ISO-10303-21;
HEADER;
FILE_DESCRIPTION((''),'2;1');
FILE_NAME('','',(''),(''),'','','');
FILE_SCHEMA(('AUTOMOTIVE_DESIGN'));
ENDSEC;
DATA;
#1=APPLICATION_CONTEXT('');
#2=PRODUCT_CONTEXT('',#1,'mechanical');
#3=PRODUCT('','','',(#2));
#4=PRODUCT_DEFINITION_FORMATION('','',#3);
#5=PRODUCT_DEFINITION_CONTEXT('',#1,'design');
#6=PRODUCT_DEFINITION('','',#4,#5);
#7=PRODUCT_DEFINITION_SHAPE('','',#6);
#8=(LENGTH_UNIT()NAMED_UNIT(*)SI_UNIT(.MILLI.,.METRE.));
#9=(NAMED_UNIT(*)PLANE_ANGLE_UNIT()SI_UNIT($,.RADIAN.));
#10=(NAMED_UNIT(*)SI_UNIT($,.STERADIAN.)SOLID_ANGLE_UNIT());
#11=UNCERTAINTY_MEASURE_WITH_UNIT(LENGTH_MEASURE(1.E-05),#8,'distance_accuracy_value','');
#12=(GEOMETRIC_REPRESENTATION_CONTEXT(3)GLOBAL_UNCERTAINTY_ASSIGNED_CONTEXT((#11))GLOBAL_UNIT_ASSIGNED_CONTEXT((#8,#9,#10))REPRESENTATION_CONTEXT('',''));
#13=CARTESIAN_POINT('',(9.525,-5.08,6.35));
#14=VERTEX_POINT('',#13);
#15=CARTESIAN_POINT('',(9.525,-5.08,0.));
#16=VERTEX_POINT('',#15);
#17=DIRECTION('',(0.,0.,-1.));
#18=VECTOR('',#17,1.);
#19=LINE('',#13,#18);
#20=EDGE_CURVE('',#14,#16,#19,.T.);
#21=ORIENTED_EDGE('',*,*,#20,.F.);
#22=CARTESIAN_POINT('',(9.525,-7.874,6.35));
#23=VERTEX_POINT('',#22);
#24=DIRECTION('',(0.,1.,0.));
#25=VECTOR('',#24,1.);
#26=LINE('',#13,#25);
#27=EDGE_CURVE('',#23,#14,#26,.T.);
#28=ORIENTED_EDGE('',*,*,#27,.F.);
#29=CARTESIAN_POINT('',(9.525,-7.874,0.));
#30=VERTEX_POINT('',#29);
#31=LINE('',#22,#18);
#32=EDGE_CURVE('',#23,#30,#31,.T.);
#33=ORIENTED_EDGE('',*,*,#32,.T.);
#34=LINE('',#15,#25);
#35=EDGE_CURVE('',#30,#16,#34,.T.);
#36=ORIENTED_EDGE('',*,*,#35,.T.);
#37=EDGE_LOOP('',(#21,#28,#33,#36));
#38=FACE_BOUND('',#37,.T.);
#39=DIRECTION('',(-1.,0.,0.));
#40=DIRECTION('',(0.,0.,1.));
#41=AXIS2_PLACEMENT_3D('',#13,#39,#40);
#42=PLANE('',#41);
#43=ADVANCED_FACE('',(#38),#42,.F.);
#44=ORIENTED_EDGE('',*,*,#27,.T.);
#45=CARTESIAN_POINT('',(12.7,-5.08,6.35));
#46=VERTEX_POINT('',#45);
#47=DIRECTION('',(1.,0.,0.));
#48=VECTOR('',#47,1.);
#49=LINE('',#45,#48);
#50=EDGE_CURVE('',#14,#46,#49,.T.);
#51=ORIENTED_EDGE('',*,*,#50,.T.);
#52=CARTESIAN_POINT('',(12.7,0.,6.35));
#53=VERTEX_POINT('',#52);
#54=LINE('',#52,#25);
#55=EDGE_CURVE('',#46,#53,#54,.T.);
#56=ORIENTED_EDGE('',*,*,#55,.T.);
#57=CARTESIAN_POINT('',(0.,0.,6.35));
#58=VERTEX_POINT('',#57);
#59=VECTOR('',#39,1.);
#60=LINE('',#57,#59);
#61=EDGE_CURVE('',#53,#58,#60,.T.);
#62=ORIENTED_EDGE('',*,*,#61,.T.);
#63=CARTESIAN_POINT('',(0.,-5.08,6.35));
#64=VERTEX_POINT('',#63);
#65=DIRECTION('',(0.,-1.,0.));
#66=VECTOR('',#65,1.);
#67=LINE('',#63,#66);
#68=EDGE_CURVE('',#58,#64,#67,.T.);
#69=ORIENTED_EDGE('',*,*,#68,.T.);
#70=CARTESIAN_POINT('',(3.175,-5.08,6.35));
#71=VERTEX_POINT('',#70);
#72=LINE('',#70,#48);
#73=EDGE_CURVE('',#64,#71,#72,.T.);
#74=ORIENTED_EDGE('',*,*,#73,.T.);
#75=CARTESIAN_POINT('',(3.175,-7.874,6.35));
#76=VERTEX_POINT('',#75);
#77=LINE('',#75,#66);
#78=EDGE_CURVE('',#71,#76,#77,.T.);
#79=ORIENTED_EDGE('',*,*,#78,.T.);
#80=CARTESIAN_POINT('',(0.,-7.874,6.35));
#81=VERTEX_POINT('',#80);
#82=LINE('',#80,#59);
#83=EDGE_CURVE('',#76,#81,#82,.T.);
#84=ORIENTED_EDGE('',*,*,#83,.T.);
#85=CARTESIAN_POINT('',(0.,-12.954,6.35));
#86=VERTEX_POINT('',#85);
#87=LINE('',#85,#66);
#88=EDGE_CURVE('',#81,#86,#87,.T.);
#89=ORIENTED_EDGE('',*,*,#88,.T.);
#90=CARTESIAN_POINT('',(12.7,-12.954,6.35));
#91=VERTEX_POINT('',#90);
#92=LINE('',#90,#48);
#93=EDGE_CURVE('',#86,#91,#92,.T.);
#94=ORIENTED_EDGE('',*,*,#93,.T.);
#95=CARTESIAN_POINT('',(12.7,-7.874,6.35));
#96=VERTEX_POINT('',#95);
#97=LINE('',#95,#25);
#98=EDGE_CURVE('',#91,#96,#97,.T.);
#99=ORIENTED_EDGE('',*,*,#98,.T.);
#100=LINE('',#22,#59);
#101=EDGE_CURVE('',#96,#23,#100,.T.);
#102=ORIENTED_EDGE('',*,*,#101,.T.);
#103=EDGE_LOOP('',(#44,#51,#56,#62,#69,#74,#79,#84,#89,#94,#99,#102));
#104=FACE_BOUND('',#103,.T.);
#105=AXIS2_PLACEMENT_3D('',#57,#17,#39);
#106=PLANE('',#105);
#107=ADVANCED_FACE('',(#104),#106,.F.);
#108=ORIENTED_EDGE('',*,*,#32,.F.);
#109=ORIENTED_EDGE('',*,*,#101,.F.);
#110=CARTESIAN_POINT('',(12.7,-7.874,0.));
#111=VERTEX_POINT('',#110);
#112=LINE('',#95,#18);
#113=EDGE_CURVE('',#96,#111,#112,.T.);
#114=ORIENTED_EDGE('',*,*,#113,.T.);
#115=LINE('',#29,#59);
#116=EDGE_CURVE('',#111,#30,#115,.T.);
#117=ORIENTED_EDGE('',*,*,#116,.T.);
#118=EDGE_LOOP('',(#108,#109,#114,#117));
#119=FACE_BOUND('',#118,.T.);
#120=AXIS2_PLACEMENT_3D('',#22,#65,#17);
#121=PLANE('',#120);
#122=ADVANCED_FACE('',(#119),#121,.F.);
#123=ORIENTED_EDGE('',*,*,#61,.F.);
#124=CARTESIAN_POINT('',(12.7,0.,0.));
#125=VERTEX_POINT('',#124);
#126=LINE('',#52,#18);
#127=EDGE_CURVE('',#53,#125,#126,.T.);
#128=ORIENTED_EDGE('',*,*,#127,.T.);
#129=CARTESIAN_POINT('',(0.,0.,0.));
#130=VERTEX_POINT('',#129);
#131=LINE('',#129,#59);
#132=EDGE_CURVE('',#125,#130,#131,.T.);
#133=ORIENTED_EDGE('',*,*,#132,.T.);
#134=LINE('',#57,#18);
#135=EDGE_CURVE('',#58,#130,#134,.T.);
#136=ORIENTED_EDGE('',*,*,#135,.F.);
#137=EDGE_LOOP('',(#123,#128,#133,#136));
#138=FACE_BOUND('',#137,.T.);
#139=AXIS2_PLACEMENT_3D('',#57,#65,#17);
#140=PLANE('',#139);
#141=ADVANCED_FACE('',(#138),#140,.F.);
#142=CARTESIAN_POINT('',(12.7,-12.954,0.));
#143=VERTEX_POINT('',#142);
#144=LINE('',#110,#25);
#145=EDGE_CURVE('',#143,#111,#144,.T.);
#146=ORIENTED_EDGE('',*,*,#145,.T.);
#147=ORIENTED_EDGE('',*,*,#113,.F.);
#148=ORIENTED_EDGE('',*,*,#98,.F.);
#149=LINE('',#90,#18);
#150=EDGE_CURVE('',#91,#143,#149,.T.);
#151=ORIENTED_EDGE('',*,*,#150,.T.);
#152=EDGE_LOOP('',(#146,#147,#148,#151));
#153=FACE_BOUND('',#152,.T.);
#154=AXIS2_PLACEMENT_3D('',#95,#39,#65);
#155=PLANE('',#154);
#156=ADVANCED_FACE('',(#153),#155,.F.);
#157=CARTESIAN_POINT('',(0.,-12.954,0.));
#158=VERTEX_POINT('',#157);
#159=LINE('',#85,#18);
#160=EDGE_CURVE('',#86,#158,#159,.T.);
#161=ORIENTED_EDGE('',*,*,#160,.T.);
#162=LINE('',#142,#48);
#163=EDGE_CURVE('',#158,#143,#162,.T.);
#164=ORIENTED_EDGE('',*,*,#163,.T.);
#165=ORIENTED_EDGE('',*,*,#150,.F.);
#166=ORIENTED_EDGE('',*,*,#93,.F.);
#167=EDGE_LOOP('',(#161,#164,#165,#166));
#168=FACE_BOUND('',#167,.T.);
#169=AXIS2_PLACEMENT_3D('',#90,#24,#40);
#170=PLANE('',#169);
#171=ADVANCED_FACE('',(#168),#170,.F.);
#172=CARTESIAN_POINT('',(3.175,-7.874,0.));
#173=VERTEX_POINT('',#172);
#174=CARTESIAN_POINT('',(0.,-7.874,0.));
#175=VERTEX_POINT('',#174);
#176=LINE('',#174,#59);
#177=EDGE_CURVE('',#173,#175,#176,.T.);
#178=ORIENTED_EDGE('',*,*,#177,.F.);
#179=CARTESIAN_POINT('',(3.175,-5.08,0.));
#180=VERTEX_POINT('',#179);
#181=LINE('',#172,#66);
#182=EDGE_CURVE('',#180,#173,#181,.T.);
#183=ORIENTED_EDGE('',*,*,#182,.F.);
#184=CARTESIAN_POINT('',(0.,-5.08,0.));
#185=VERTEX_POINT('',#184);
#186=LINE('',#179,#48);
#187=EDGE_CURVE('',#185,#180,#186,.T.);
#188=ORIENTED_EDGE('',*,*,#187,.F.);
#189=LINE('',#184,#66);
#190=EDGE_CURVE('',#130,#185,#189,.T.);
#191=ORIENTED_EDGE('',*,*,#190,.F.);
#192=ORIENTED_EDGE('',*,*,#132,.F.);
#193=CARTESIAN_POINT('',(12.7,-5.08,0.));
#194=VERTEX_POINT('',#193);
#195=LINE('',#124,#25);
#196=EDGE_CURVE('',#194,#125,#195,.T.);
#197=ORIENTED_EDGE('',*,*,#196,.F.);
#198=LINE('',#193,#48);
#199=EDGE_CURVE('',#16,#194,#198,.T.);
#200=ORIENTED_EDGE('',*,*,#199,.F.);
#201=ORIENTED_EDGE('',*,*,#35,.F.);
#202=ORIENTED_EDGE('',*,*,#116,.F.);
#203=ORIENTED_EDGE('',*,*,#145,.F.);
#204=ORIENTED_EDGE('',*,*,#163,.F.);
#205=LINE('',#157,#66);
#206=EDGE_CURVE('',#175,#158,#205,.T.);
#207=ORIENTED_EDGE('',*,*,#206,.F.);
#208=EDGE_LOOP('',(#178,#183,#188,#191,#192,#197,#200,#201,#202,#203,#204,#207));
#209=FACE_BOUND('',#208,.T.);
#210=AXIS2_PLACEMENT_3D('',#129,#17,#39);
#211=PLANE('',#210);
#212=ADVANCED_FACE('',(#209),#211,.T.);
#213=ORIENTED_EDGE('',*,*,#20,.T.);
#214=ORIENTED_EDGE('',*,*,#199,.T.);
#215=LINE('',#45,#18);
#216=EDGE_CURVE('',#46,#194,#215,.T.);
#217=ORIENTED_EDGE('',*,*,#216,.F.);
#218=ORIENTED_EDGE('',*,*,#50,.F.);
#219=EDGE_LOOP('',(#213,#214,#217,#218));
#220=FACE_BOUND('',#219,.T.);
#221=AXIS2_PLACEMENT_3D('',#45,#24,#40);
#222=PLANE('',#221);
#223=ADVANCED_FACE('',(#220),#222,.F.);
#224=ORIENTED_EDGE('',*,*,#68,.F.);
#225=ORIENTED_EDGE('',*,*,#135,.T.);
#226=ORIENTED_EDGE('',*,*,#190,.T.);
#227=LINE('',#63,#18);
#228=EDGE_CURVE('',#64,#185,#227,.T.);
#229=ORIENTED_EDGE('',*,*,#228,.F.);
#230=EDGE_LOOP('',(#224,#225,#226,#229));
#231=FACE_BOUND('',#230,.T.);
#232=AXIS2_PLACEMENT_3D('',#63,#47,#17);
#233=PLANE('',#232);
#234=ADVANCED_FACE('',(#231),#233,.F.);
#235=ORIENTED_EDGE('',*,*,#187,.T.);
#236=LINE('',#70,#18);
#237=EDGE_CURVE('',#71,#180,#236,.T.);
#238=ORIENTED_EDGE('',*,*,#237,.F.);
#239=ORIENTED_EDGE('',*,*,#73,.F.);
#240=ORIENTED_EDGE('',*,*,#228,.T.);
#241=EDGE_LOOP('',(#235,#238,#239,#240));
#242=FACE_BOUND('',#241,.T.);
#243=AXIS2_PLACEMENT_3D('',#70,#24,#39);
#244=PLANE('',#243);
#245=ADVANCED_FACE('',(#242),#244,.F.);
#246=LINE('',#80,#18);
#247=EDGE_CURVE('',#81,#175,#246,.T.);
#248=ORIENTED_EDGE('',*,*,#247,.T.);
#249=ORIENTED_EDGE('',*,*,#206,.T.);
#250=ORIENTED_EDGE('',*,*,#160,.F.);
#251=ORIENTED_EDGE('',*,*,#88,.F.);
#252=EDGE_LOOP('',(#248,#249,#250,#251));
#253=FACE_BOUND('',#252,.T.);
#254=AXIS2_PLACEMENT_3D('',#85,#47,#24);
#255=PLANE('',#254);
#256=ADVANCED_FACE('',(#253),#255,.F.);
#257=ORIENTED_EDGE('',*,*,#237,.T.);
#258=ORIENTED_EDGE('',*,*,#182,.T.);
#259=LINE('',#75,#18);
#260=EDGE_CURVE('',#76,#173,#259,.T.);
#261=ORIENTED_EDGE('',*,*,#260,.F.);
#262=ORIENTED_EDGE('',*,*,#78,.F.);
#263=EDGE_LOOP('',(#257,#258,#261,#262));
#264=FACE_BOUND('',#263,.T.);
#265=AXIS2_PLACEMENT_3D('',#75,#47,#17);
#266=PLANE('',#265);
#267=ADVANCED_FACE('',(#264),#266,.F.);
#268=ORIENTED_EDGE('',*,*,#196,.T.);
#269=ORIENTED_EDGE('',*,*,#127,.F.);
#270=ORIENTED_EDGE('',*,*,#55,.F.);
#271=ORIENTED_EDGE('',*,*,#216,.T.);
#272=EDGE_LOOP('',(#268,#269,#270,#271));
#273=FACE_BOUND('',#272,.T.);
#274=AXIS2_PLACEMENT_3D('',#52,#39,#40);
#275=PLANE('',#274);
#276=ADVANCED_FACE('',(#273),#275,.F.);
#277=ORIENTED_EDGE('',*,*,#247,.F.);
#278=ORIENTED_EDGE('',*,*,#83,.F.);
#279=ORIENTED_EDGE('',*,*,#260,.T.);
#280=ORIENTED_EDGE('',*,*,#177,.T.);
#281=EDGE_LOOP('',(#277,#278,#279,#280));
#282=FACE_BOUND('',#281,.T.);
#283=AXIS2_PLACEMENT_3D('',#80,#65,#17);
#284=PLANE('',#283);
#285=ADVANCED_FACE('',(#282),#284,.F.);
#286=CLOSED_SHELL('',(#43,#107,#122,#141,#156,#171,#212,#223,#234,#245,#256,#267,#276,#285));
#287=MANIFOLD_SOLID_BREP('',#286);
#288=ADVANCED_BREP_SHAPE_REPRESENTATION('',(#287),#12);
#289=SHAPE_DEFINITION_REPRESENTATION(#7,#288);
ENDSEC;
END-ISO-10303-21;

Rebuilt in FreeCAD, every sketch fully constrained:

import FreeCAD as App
import Part
import Sketcher
from FreeCAD import Vector
Q = App.Units.Quantity

doc = App.newDocument("Part")
params = doc.addObject("Spreadsheet::Sheet", "Params")
for row, (alias, value) in enumerate([
    ("sketch1_width", "0.5 in"),
    ("sketch1_height", "0.2 in"),
    ("sketch1_height2", "0.11 in"),
    ("sketch1_width2", "0.125 in"),
    ("pad1_length", "0.25 in"),
], start=1):
    params.set(f"A{row}", alias)
    params.set(f"B{row}", "=" + value)
    params.setAlias(f"B{row}", alias)

body = doc.addObject("PartDesign::Body", "Body")

sketch1 = body.newObject("Sketcher::SketchObject", "Sketch")
sketch1.AttachmentSupport = (doc.getObject("XY_Plane"), [""])
sketch1.MapMode = "FlatFace"
sketch1.addGeometry(Part.LineSegment(Vector(12.7, 0, 0), Vector(0, 0, 0)), False)
sketch1.addGeometry(Part.LineSegment(Vector(0, 0, 0), Vector(0, -5.1, 0)), False)
sketch1.addGeometry(Part.LineSegment(Vector(0, -5.1, 0), Vector(3.2, -5.1, 0)), False)
sketch1.addGeometry(Part.LineSegment(Vector(3.2, -5.1, 0), Vector(3.2, -7.9, 0)), False)
sketch1.addGeometry(Part.LineSegment(Vector(3.2, -7.9, 0), Vector(0, -7.9, 0)), False)
sketch1.addGeometry(Part.LineSegment(Vector(0, -7.9, 0), Vector(0, -13, 0)), False)
sketch1.addGeometry(Part.LineSegment(Vector(0, -13, 0), Vector(12.7, -13, 0)), False)
sketch1.addGeometry(Part.LineSegment(Vector(12.7, -13, 0), Vector(12.7, -7.9, 0)), False)
sketch1.addGeometry(Part.LineSegment(Vector(12.7, -7.9, 0), Vector(9.5, -7.9, 0)), False)
sketch1.addGeometry(Part.LineSegment(Vector(9.5, -7.9, 0), Vector(9.5, -5.1, 0)), False)
sketch1.addGeometry(Part.LineSegment(Vector(9.5, -5.1, 0), Vector(12.7, -5.1, 0)), False)
sketch1.addGeometry(Part.LineSegment(Vector(12.7, -5.1, 0), Vector(12.7, 0, 0)), False)
sketch1.addConstraint(Sketcher.Constraint("Coincident", 0, 2, 1, 1))
sketch1.addConstraint(Sketcher.Constraint("Coincident", 1, 2, 2, 1))
sketch1.addConstraint(Sketcher.Constraint("Coincident", 2, 2, 3, 1))
sketch1.addConstraint(Sketcher.Constraint("Coincident", 3, 2, 4, 1))
sketch1.addConstraint(Sketcher.Constraint("Coincident", 4, 2, 5, 1))
sketch1.addConstraint(Sketcher.Constraint("Coincident", 5, 2, 6, 1))
sketch1.addConstraint(Sketcher.Constraint("Coincident", 6, 2, 7, 1))
sketch1.addConstraint(Sketcher.Constraint("Coincident", 7, 2, 8, 1))
sketch1.addConstraint(Sketcher.Constraint("Coincident", 8, 2, 9, 1))
sketch1.addConstraint(Sketcher.Constraint("Coincident", 9, 2, 10, 1))
sketch1.addConstraint(Sketcher.Constraint("Coincident", 10, 2, 11, 1))
sketch1.addConstraint(Sketcher.Constraint("Coincident", 11, 2, 0, 1))
sketch1.addConstraint(Sketcher.Constraint("Horizontal", 0))
sketch1.addConstraint(Sketcher.Constraint("Vertical", 1))
sketch1.addConstraint(Sketcher.Constraint("Horizontal", 2))
sketch1.addConstraint(Sketcher.Constraint("Vertical", 3))
sketch1.addConstraint(Sketcher.Constraint("Horizontal", 4))
sketch1.addConstraint(Sketcher.Constraint("Vertical", 5))
sketch1.addConstraint(Sketcher.Constraint("Horizontal", 6))
sketch1.addConstraint(Sketcher.Constraint("Vertical", 7))
sketch1.addConstraint(Sketcher.Constraint("Horizontal", 8))
sketch1.addConstraint(Sketcher.Constraint("Vertical", 9))
sketch1.addConstraint(Sketcher.Constraint("Horizontal", 10))
sketch1.addConstraint(Sketcher.Constraint("Vertical", 11))
sketch1.addConstraint(Sketcher.Constraint("Coincident", 0, 2, -1, 1))
sketch1.addConstraint(Sketcher.Constraint("PointOnObject", 4, 2, -2))
sketch1.addConstraint(Sketcher.Constraint("Horizontal", 4, 2, 7, 2))
sketch1.addConstraint(Sketcher.Constraint("Horizontal", 2, 2, 9, 2))
sketch1.addConstraint(Sketcher.Constraint("Vertical", 7, 2, 10, 2))
sketch1.addConstraint(Sketcher.Constraint("Equal", 4, 8))
sketch1.addConstraint(Sketcher.Constraint("Equal", 1, 5))
sketch1.addConstraint(Sketcher.Constraint("DistanceX", 0, 2, 0, 1, Q("0.5 in")))
sketch1.addConstraint(Sketcher.Constraint("DistanceY", 1, 2, 1, 1, Q("0.2 in")))
sketch1.addConstraint(Sketcher.Constraint("DistanceY", 3, 2, 3, 1, Q("0.11 in")))
sketch1.addConstraint(Sketcher.Constraint("DistanceX", 2, 1, 2, 2, Q("0.125 in")))
sketch1.setExpression("Constraints[31]", "Params.sketch1_width")
sketch1.setExpression("Constraints[32]", "Params.sketch1_height")
sketch1.setExpression("Constraints[33]", "Params.sketch1_height2")
sketch1.setExpression("Constraints[34]", "Params.sketch1_width2")
pad1 = body.newObject("PartDesign::Pad", "Pad")
pad1.Profile = sketch1
pad1.setExpression("Length", "Params.pad1_length")

doc.recompute()
